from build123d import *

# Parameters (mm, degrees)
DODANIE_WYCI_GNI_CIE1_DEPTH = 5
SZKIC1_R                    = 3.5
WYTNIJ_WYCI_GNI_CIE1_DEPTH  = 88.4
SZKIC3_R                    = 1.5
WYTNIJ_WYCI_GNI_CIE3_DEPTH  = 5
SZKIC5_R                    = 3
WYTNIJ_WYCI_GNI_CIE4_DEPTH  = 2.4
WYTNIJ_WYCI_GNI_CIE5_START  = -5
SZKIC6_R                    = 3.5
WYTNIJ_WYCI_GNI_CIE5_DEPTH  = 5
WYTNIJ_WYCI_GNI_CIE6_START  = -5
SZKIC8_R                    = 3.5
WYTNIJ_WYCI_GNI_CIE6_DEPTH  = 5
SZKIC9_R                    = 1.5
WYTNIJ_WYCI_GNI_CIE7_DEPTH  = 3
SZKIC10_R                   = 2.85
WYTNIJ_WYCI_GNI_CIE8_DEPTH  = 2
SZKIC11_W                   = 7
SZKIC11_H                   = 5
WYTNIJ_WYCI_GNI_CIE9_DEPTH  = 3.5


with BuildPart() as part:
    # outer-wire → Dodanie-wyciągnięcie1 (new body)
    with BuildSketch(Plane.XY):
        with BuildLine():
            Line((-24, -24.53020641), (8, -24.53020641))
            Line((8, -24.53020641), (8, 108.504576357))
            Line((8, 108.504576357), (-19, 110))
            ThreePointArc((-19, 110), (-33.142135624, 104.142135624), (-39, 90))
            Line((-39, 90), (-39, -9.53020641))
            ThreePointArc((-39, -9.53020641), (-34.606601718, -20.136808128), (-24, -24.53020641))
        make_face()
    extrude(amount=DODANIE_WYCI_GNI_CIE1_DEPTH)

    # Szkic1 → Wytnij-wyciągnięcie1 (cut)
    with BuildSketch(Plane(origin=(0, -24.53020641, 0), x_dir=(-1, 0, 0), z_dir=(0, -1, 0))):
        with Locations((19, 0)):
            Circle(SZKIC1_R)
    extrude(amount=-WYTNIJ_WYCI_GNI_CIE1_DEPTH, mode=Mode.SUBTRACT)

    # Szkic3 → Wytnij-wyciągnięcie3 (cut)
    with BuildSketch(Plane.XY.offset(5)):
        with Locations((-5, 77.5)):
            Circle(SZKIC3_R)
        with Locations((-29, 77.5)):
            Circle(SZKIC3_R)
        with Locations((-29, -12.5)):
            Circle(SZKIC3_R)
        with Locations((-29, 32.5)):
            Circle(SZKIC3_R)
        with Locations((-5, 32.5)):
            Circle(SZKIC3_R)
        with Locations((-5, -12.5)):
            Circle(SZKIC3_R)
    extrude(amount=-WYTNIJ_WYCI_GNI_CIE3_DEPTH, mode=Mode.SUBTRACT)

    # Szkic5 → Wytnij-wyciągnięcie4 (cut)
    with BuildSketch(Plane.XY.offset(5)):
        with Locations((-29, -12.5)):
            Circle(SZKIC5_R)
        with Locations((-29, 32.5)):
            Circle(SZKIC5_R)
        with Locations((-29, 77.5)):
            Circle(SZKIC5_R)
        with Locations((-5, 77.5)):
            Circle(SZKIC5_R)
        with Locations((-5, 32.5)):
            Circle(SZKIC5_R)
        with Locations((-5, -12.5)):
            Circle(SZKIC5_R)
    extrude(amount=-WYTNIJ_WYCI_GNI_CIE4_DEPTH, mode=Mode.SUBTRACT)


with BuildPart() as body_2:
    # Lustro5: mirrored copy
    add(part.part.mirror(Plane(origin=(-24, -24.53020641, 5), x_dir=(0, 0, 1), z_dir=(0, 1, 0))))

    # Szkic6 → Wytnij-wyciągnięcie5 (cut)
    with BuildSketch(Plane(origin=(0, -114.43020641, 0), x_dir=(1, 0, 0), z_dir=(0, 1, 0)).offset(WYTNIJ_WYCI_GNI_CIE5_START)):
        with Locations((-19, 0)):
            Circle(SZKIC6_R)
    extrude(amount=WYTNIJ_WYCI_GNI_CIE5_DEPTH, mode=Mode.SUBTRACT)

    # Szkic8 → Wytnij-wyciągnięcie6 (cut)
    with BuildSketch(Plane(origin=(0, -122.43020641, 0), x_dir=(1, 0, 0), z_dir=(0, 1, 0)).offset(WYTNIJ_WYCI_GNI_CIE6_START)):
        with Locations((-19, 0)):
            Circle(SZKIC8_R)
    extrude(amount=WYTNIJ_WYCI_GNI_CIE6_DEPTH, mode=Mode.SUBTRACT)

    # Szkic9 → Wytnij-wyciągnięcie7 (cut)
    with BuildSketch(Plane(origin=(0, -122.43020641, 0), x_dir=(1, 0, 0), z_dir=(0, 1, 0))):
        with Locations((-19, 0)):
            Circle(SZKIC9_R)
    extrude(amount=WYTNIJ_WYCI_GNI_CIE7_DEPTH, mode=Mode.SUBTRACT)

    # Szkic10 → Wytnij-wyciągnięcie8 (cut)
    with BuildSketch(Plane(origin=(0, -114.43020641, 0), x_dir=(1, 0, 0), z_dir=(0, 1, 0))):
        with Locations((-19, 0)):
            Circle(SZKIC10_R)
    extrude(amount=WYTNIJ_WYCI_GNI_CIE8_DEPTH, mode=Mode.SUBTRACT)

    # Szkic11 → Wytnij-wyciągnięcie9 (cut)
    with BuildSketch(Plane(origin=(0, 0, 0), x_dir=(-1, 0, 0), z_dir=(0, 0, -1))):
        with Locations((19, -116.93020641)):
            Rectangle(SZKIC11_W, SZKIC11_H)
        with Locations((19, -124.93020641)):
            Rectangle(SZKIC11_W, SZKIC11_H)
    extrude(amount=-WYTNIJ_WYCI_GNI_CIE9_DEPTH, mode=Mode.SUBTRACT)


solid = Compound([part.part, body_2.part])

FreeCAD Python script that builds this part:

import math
import FreeCAD as App
import Part
import Sketcher

V = App.Vector
Q = App.Units.Quantity

doc = App.newDocument("Part")
body = doc.addObject("PartDesign::Body", "Body")

# Sketch on XY plane
sketch1 = body.newObject("Sketcher::SketchObject", "Sketch")
sketch1.AttachmentSupport = (doc.getObject("XY_Plane"), [""])
sketch1.MapMode = "FlatFace"
sketch1.addGeometry([
    Part.LineSegment(V(-24, -24.530206, 0), V(8, -24.530206, 0)),  # 0
    Part.LineSegment(V(8, -24.530206, 0), V(8, 108.504576, 0)),  # 1
    Part.LineSegment(V(8, 108.504576, 0), V(-19, 110, 0)),  # 2
    Part.ArcOfCircle(Part.Circle(V(-19, 90, 0), V(0, 0, 1), 20), math.radians(90), math.radians(180)),  # 3
    Part.LineSegment(V(-39, 90, 0), V(-39, -9.530206, 0)),  # 4
    Part.ArcOfCircle(Part.Circle(V(-24, -9.530206, 0), V(0, 0, 1), 15), math.radians(180), math.radians(270)),  # 5
], False)
sketch1.addConstraint([
    Sketcher.Constraint("Coincident", 0, 2, 1, 1),
    Sketcher.Constraint("Coincident", 1, 2, 2, 1),
    Sketcher.Constraint("Coincident", 2, 2, 3, 1),
    Sketcher.Constraint("Tangent", 3, 2, 4, 1),
    Sketcher.Constraint("Tangent", 4, 2, 5, 1),
    Sketcher.Constraint("Tangent", 5, 2, 0, 1),
    Sketcher.Constraint("Horizontal", 0),
    Sketcher.Constraint("Vertical", 1),
    Sketcher.Constraint("Vertical", 4),
    Sketcher.Constraint("Vertical", 3, 3, 2, 2),
    Sketcher.Constraint("Radius", 3, Q("20 mm")),
    Sketcher.Constraint("Radius", 5, Q("15 mm")),
    Sketcher.Constraint("DistanceX", 0, 1, 0, 2, Q("32 mm")),
    Sketcher.Constraint("DistanceX", 3, 3, -1, 1, Q("19 mm")),
    Sketcher.Constraint("DistanceY", -1, 1, 3, 3, Q("90 mm")),
    Sketcher.Constraint("Distance", 2, Q("27.041381 mm")),
    Sketcher.Constraint("DistanceY", 1, 1, 1, 2, Q("133.034783 mm")),
])
pad1 = body.newObject("PartDesign::Pad", "Pad")
pad1.Profile = sketch1
pad1.Length = 5

# Sketch on XZ plane
sketch2 = body.newObject("Sketcher::SketchObject", "Sketch001")
sketch2.AttachmentSupport = (doc.getObject("XZ_Plane"), [""])
sketch2.MapMode = "FlatFace"
sketch2.AttachmentOffset = App.Placement(V(0, 0, 24.530206), App.Rotation())
sketch2.addGeometry(Part.Circle(V(-19, 0, 0), V(0, 0, 1), 3.5), False)
sketch2.addConstraint([
    Sketcher.Constraint("PointOnObject", 0, 3, -1),
    Sketcher.Constraint("Diameter", 0, Q("7 mm")),
    Sketcher.Constraint("DistanceX", 0, 3, -1, 1, Q("19 mm")),
])
pocket1 = body.newObject("PartDesign::Pocket", "Pocket")
pocket1.Profile = sketch2
pocket1.Length = 88.4

# Sketch on XY plane
sketch3 = body.newObject("Sketcher::SketchObject", "Sketch002")
sketch3.AttachmentSupport = (doc.getObject("XY_Plane"), [""])
sketch3.MapMode = "FlatFace"
sketch3.AttachmentOffset = App.Placement(V(0, 0, 5), App.Rotation())
sketch3.addGeometry([
    Part.Circle(V(-5, 77.5, 0), V(0, 0, 1), 1.5),  # 0
    Part.Circle(V(-29, 77.5, 0), V(0, 0, 1), 1.5),  # 1
    Part.Circle(V(-29, -12.5, 0), V(0, 0, 1), 1.5),  # 2
    Part.Circle(V(-29, 32.5, 0), V(0, 0, 1), 1.5),  # 3
    Part.Circle(V(-5, 32.5, 0), V(0, 0, 1), 1.5),  # 4
    Part.Circle(V(-5, -12.5, 0), V(0, 0, 1), 1.5),  # 5
], False)
sketch3.addConstraint([
    Sketcher.Constraint("Equal", 0, 1),
    Sketcher.Constraint("Equal", 1, 2),
    Sketcher.Constraint("Equal", 2, 3),
    Sketcher.Constraint("Equal", 3, 4),
    Sketcher.Constraint("Equal", 4, 5),
    Sketcher.Constraint("Horizontal", 0, 3, 1, 3),
    Sketcher.Constraint("Horizontal", 3, 3, 4, 3),
    Sketcher.Constraint("Horizontal", 2, 3, 5, 3),
    Sketcher.Constraint("Vertical", 1, 3, 2, 3),
    Sketcher.Constraint("Vertical", 2, 3, 3, 3),
    Sketcher.Constraint("Vertical", 0, 3, 4, 3),
    Sketcher.Constraint("Vertical", 4, 3, 5, 3),
    Sketcher.Constraint("Diameter", 0, Q("3 mm")),
    Sketcher.Constraint("DistanceX", 0, 3, -1, 1, Q("5 mm")),
    Sketcher.Constraint("DistanceX", 1, 3, -1, 1, Q("29 mm")),
    Sketcher.Constraint("DistanceY", 2, 3, 1, 3, Q("90 mm")),
    Sketcher.Constraint("DistanceY", 3, 3, 1, 3, Q("45 mm")),
    Sketcher.Constraint("DistanceY", -1, 1, 0, 3, Q("77.5 mm")),
])
pocket2 = body.newObject("PartDesign::Pocket", "Pocket001")
pocket2.Profile = sketch3
pocket2.Length = 5

# Sketch on XY plane
sketch4 = body.newObject("Sketcher::SketchObject", "Sketch003")
sketch4.AttachmentSupport = (doc.getObject("XY_Plane"), [""])
sketch4.MapMode = "FlatFace"
sketch4.AttachmentOffset = App.Placement(V(0, 0, 5), App.Rotation())
sketch4.addGeometry([
    Part.Circle(V(-29, -12.5, 0), V(0, 0, 1), 3),  # 0
    Part.Circle(V(-29, 32.5, 0), V(0, 0, 1), 3),  # 1
    Part.Circle(V(-29, 77.5, 0), V(0, 0, 1), 3),  # 2
    Part.Circle(V(-5, 77.5, 0), V(0, 0, 1), 3),  # 3
    Part.Circle(V(-5, 32.5, 0), V(0, 0, 1), 3),  # 4
    Part.Circle(V(-5, -12.5, 0), V(0, 0, 1), 3),  # 5
], False)
sketch4.addConstraint([
    Sketcher.Constraint("Equal", 0, 1),
    Sketcher.Constraint("Equal", 1, 2),
    Sketcher.Constraint("Equal", 2, 3),
    Sketcher.Constraint("Equal", 3, 4),
    Sketcher.Constraint("Equal", 4, 5),
    Sketcher.Constraint("Horizontal", 2, 3, 3, 3),
    Sketcher.Constraint("Horizontal", 1, 3, 4, 3),
    Sketcher.Constraint("Horizontal", 0, 3, 5, 3),
    Sketcher.Constraint("Vertical", 0, 3, 1, 3),
    Sketcher.Constraint("Vertical", 1, 3, 2, 3),
    Sketcher.Constraint("Vertical", 3, 3, 4, 3),
    Sketcher.Constraint("Vertical", 4, 3, 5, 3),
    Sketcher.Constraint("Diameter", 0, Q("6 mm")),
    Sketcher.Constraint("DistanceX", 0, 3, -1, 1, Q("29 mm")),
    Sketcher.Constraint("DistanceX", 3, 3, -1, 1, Q("5 mm")),
    Sketcher.Constraint("DistanceY", 0, 3, 1, 3, Q("45 mm")),
    Sketcher.Constraint("DistanceY", 1, 3, 2, 3, Q("45 mm")),
    Sketcher.Constraint("DistanceY", 0, 3, -1, 1, Q("12.5 mm")),
])
pocket3 = body.newObject("PartDesign::Pocket", "Pocket002")
pocket3.Profile = sketch4
pocket3.Length = 2.4
body2 = doc.addObject("PartDesign::Body", "Body001")
doc.recompute()

mirroring = doc.addObject("Part::Mirroring", "Mirroring")
mirroring.Source = body
mirroring.Base = V(-24, -24.530206, 5)
mirroring.Normal = V(0, 1, 0)
body2.BaseFeature = mirroring
doc.recompute()

# Sketch on XZ plane
sketch5 = body2.newObject("Sketcher::SketchObject", "Sketch004")
sketch5.AttachmentSupport = (doc.getObject("XZ_Plane001"), [""])
sketch5.MapMode = "FlatFace"
sketch5.AttachmentOffset = App.Placement(V(0, 0, 119.430206), App.Rotation())
sketch5.addGeometry(Part.Circle(V(-19, 0, 0), V(0, 0, 1), 3.5), False)
sketch5.addConstraint([
    Sketcher.Constraint("PointOnObject", 0, 3, -1),
    Sketcher.Constraint("Diameter", 0, Q("7 mm")),
    Sketcher.Constraint("DistanceX", 0, 3, -1, 1, Q("19 mm")),
])
pocket4 = body2.newObject("PartDesign::Pocket", "Pocket003")
pocket4.Profile = sketch5
pocket4.Length = 5

# Sketch on XZ plane
sketch6 = body2.newObject("Sketcher::SketchObject", "Sketch005")
sketch6.AttachmentSupport = (doc.getObject("XZ_Plane001"), [""])
sketch6.MapMode = "FlatFace"
sketch6.AttachmentOffset = App.Placement(V(0, 0, 127.430206), App.Rotation())
sketch6.addGeometry(Part.Circle(V(-19, 0, 0), V(0, 0, 1), 3.5), False)
sketch6.addConstraint([
    Sketcher.Constraint("PointOnObject", 0, 3, -1),
    Sketcher.Constraint("Diameter", 0, Q("7 mm")),
    Sketcher.Constraint("DistanceX", 0, 3, -1, 1, Q("19 mm")),
])
pocket5 = body2.newObject("PartDesign::Pocket", "Pocket004")
pocket5.Profile = sketch6
pocket5.Length = 5

# Sketch on XZ plane
sketch7 = body2.newObject("Sketcher::SketchObject", "Sketch006")
sketch7.AttachmentSupport = (doc.getObject("XZ_Plane001"), [""])
sketch7.MapMode = "FlatFace"
sketch7.AttachmentOffset = App.Placement(V(0, 0, 122.430206), App.Rotation())
sketch7.addGeometry(Part.Circle(V(-19, 0, 0), V(0, 0, 1), 1.5), False)
sketch7.addConstraint([
    Sketcher.Constraint("PointOnObject", 0, 3, -1),
    Sketcher.Constraint("Diameter", 0, Q("3 mm")),
    Sketcher.Constraint("DistanceX", 0, 3, -1, 1, Q("19 mm")),
])
pocket6 = body2.newObject("PartDesign::Pocket", "Pocket005")
pocket6.Profile = sketch7
pocket6.Length = 3

# Sketch on XZ plane
sketch8 = body2.newObject("Sketcher::SketchObject", "Sketch007")
sketch8.AttachmentSupport = (doc.getObject("XZ_Plane001"), [""])
sketch8.MapMode = "FlatFace"
sketch8.AttachmentOffset = App.Placement(V(0, 0, 114.430206), App.Rotation())
sketch8.addGeometry(Part.Circle(V(-19, 0, 0), V(0, 0, 1), 2.85), False)
sketch8.addConstraint([
    Sketcher.Constraint("PointOnObject", 0, 3, -1),
    Sketcher.Constraint("Diameter", 0, Q("5.7 mm")),
    Sketcher.Constraint("DistanceX", 0, 3, -1, 1, Q("19 mm")),
])
pocket7 = body2.newObject("PartDesign::Pocket", "Pocket006")
pocket7.Profile = sketch8
pocket7.Length = 2

# Sketch on XY plane
sketch9 = body2.newObject("Sketcher::SketchObject", "Sketch008")
sketch9.AttachmentSupport = (doc.getObject("XY_Plane001"), [""])
sketch9.MapMode = "FlatFace"
sketch9.addGeometry([
    Part.LineSegment(V(-15.5, -114.430206, 0), V(-15.5, -119.430206, 0)),  # 0
    Part.LineSegment(V(-15.5, -119.430206, 0), V(-22.5, -119.430206, 0)),  # 1
    Part.LineSegment(V(-22.5, -119.430206, 0), V(-22.5, -114.430206, 0)),  # 2
    Part.LineSegment(V(-22.5, -114.430206, 0), V(-15.5, -114.430206, 0)),  # 3
    Part.LineSegment(V(-15.5, -122.430206, 0), V(-15.5, -127.430206, 0)),  # 4
    Part.LineSegment(V(-15.5, -127.430206, 0), V(-22.5, -127.430206, 0)),  # 5
    Part.LineSegment(V(-22.5, -127.430206, 0), V(-22.5, -122.430206, 0)),  # 6
    Part.LineSegment(V(-22.5, -122.430206, 0), V(-15.5, -122.430206, 0)),  # 7
], False)
sketch9.addConstraint([
    Sketcher.Constraint("Coincident", 0, 2, 1, 1),
    Sketcher.Constraint("Coincident", 1, 2, 2, 1),
    Sketcher.Constraint("Coincident", 2, 2, 3, 1),
    Sketcher.Constraint("Coincident", 3, 2, 0, 1),
    Sketcher.Constraint("Coincident", 4, 2, 5, 1),
    Sketcher.Constraint("Coincident", 5, 2, 6, 1),
    Sketcher.Constraint("Coincident", 6, 2, 7, 1),
    Sketcher.Constraint("Coincident", 7, 2, 4, 1),
    Sketcher.Constraint("Vertical", 0),
    Sketcher.Constraint("Horizontal", 1),
    Sketcher.Constraint("Vertical", 2),
    Sketcher.Constraint("Horizontal", 3),
    Sketcher.Constraint("Vertical", 4),
    Sketcher.Constraint("Horizontal", 5),
    Sketcher.Constraint("Vertical", 6),
    Sketcher.Constraint("Horizontal", 7),
    Sketcher.Constraint("Vertical", 3, 2, 4, 2),
    Sketcher.Constraint("Vertical", 2, 2, 5, 2),
    Sketcher.Constraint("Equal", 2, 4),
    Sketcher.Constraint("DistanceX", 1, 2, 1, 1, Q("7 mm")),
    Sketcher.Constraint("DistanceY", 0, 2, 0, 1, Q("5 mm")),
    Sketcher.Constraint("DistanceY", 4, 2, 0, 2, Q("8 mm")),
    Sketcher.Constraint("DistanceX", 0, 2, -1, 1, Q("15.5 mm")),
    Sketcher.Constraint("DistanceY", 0, 2, -1, 1, Q("119.430206 mm")),
])
pocket8 = body2.newObject("PartDesign::Pocket", "Pocket007")
pocket8.Profile = sketch9
pocket8.Length = 3.5
pocket8.Reversed = True
mirroring.Visibility = False

doc.recompute()
